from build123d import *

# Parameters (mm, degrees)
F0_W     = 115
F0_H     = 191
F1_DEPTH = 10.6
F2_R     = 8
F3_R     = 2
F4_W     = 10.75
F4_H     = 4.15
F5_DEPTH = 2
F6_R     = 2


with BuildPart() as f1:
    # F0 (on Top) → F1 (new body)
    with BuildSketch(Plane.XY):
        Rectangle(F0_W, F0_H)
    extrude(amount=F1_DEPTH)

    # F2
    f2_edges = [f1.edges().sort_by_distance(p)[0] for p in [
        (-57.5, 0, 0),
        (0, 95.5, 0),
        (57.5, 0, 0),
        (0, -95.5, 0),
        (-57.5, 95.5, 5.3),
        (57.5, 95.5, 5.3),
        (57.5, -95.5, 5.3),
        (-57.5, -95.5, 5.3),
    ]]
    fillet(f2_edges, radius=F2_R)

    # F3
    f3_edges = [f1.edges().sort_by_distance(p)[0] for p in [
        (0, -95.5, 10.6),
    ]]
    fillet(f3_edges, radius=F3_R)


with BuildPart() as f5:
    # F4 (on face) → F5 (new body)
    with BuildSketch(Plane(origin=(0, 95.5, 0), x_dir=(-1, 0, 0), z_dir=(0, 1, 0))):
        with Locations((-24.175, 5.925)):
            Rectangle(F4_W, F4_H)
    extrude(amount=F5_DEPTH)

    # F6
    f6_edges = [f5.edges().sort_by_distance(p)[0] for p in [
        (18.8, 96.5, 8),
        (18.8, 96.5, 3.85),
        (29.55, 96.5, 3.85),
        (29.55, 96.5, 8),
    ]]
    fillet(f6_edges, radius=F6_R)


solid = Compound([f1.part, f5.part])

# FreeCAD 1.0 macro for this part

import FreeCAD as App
import Part
import Sketcher
from FreeCAD import Vector


def edges_at(feature, points):
    """Names of the edges that pass closest to the given points."""
    edges = feature.Shape.Edges
    near = lambda p: min(range(len(edges)), key=lambda i: edges[i].distToShape(Part.Vertex(*p))[0])
    return sorted({f"Edge{near(p) + 1}" for p in points})

doc = App.newDocument("Part")
body = doc.addObject("PartDesign::Body", "Body")

sketch1 = doc.addObject("Sketcher::SketchObject", "Sketch")
body.addObject(sketch1)
sketch1.AttachmentSupport = (doc.XY_Plane, [""])
sketch1.MapMode = "FlatFace"
sketch1.addGeometry(Part.LineSegment(Vector(-58, 96, 0), Vector(-58, -96, 0)), False)
sketch1.addGeometry(Part.LineSegment(Vector(-58, -96, 0), Vector(58, -96, 0)), False)
sketch1.addGeometry(Part.LineSegment(Vector(58, -96, 0), Vector(58, 96, 0)), False)
sketch1.addGeometry(Part.LineSegment(Vector(58, 96, 0), Vector(-58, 96, 0)), False)
sketch1.addConstraint(Sketcher.Constraint("Coincident", 0, 2, 1, 1))
sketch1.addConstraint(Sketcher.Constraint("Coincident", 1, 2, 2, 1))
sketch1.addConstraint(Sketcher.Constraint("Coincident", 2, 2, 3, 1))
sketch1.addConstraint(Sketcher.Constraint("Coincident", 3, 2, 0, 1))
sketch1.addConstraint(Sketcher.Constraint("Vertical", 0))
sketch1.addConstraint(Sketcher.Constraint("Horizontal", 1))
sketch1.addConstraint(Sketcher.Constraint("Vertical", 2))
sketch1.addConstraint(Sketcher.Constraint("Horizontal", 3))
sketch1.addConstraint(Sketcher.Constraint("Symmetric", 0, 2, 2, 2, -1, 1))
sketch1.addConstraint(Sketcher.Constraint("DistanceX", 1, 1, 1, 2, 115.0))
sketch1.addConstraint(Sketcher.Constraint("DistanceY", 0, 2, 0, 1, 191.0))
pad1 = doc.addObject("PartDesign::Pad", "Pad")
body.addObject(pad1)
pad1.Profile = sketch1
pad1.Length = 10.6
doc.recompute()

fillet = doc.addObject("PartDesign::Fillet", "Fillet")
body.addObject(fillet)
fillet.Base = (pad1, edges_at(pad1, [
    (-57.5, 0, 0),
    (0, 95.5, 0),
    (57.5, 0, 0),
    (0, -95.5, 0),
    (-57.5, 95.5, 5.3),
    (57.5, 95.5, 5.3),
    (57.5, -95.5, 5.3),
    (-57.5, -95.5, 5.3),
]))
fillet.Radius = 8
doc.recompute()

fillet2 = doc.addObject("PartDesign::Fillet", "Fillet001")
body.addObject(fillet2)
fillet2.Base = (fillet, edges_at(fillet, [(0, -95.5, 10.6)]))
fillet2.Radius = 2
body2 = doc.addObject("PartDesign::Body", "Body001")

sketch2 = doc.addObject("Sketcher::SketchObject", "Sketch001")
body2.addObject(sketch2)
sketch2.AttachmentSupport = (doc.getObject("XZ_Plane001"), [""])
sketch2.MapMode = "FlatFace"
sketch2.AttachmentOffset = App.Placement(Vector(0, 0, -95.5), App.Rotation())
sketch2.addGeometry(Part.LineSegment(Vector(29.6, 8, 0), Vector(29.6, 3.9, 0)), False)
sketch2.addGeometry(Part.LineSegment(Vector(29.6, 3.9, 0), Vector(18.8, 3.9, 0)), False)
sketch2.addGeometry(Part.LineSegment(Vector(18.8, 3.9, 0), Vector(18.8, 8, 0)), False)
sketch2.addGeometry(Part.LineSegment(Vector(18.8, 8, 0), Vector(29.6, 8, 0)), False)
sketch2.addConstraint(Sketcher.Constraint("Coincident", 0, 2, 1, 1))
sketch2.addConstraint(Sketcher.Constraint("Coincident", 1, 2, 2, 1))
sketch2.addConstraint(Sketcher.Constraint("Coincident", 2, 2, 3, 1))
sketch2.addConstraint(Sketcher.Constraint("Coincident", 3, 2, 0, 1))
sketch2.addConstraint(Sketcher.Constraint("Vertical", 0))
sketch2.addConstraint(Sketcher.Constraint("Horizontal", 1))
sketch2.addConstraint(Sketcher.Constraint("Vertical", 2))
sketch2.addConstraint(Sketcher.Constraint("Horizontal", 3))
sketch2.addConstraint(Sketcher.Constraint("DistanceY", -1, 1, 2, 2, 8.0))
sketch2.addConstraint(Sketcher.Constraint("DistanceX", 1, 2, 1, 1, 10.75))
sketch2.addConstraint(Sketcher.Constraint("DistanceY", 0, 2, 0, 1, 4.15))
sketch2.addConstraint(Sketcher.Constraint("DistanceX", -1, 1, 1, 2, 18.8))
pad2 = doc.addObject("PartDesign::Pad", "Pad001")
body2.addObject(pad2)
pad2.Profile = sketch2
pad2.Length = 2
pad2.Reversed = True
doc.recompute()

fillet3 = doc.addObject("PartDesign::Fillet", "Fillet002")
body2.addObject(fillet3)
fillet3.Base = (pad2, edges_at(pad2, [
    (18.8, 96.5, 8),
    (18.8, 96.5, 3.85),
    (29.55, 96.5, 3.85),
    (29.55, 96.5, 8),
]))
fillet3.Radius = 2

doc.recompute()
